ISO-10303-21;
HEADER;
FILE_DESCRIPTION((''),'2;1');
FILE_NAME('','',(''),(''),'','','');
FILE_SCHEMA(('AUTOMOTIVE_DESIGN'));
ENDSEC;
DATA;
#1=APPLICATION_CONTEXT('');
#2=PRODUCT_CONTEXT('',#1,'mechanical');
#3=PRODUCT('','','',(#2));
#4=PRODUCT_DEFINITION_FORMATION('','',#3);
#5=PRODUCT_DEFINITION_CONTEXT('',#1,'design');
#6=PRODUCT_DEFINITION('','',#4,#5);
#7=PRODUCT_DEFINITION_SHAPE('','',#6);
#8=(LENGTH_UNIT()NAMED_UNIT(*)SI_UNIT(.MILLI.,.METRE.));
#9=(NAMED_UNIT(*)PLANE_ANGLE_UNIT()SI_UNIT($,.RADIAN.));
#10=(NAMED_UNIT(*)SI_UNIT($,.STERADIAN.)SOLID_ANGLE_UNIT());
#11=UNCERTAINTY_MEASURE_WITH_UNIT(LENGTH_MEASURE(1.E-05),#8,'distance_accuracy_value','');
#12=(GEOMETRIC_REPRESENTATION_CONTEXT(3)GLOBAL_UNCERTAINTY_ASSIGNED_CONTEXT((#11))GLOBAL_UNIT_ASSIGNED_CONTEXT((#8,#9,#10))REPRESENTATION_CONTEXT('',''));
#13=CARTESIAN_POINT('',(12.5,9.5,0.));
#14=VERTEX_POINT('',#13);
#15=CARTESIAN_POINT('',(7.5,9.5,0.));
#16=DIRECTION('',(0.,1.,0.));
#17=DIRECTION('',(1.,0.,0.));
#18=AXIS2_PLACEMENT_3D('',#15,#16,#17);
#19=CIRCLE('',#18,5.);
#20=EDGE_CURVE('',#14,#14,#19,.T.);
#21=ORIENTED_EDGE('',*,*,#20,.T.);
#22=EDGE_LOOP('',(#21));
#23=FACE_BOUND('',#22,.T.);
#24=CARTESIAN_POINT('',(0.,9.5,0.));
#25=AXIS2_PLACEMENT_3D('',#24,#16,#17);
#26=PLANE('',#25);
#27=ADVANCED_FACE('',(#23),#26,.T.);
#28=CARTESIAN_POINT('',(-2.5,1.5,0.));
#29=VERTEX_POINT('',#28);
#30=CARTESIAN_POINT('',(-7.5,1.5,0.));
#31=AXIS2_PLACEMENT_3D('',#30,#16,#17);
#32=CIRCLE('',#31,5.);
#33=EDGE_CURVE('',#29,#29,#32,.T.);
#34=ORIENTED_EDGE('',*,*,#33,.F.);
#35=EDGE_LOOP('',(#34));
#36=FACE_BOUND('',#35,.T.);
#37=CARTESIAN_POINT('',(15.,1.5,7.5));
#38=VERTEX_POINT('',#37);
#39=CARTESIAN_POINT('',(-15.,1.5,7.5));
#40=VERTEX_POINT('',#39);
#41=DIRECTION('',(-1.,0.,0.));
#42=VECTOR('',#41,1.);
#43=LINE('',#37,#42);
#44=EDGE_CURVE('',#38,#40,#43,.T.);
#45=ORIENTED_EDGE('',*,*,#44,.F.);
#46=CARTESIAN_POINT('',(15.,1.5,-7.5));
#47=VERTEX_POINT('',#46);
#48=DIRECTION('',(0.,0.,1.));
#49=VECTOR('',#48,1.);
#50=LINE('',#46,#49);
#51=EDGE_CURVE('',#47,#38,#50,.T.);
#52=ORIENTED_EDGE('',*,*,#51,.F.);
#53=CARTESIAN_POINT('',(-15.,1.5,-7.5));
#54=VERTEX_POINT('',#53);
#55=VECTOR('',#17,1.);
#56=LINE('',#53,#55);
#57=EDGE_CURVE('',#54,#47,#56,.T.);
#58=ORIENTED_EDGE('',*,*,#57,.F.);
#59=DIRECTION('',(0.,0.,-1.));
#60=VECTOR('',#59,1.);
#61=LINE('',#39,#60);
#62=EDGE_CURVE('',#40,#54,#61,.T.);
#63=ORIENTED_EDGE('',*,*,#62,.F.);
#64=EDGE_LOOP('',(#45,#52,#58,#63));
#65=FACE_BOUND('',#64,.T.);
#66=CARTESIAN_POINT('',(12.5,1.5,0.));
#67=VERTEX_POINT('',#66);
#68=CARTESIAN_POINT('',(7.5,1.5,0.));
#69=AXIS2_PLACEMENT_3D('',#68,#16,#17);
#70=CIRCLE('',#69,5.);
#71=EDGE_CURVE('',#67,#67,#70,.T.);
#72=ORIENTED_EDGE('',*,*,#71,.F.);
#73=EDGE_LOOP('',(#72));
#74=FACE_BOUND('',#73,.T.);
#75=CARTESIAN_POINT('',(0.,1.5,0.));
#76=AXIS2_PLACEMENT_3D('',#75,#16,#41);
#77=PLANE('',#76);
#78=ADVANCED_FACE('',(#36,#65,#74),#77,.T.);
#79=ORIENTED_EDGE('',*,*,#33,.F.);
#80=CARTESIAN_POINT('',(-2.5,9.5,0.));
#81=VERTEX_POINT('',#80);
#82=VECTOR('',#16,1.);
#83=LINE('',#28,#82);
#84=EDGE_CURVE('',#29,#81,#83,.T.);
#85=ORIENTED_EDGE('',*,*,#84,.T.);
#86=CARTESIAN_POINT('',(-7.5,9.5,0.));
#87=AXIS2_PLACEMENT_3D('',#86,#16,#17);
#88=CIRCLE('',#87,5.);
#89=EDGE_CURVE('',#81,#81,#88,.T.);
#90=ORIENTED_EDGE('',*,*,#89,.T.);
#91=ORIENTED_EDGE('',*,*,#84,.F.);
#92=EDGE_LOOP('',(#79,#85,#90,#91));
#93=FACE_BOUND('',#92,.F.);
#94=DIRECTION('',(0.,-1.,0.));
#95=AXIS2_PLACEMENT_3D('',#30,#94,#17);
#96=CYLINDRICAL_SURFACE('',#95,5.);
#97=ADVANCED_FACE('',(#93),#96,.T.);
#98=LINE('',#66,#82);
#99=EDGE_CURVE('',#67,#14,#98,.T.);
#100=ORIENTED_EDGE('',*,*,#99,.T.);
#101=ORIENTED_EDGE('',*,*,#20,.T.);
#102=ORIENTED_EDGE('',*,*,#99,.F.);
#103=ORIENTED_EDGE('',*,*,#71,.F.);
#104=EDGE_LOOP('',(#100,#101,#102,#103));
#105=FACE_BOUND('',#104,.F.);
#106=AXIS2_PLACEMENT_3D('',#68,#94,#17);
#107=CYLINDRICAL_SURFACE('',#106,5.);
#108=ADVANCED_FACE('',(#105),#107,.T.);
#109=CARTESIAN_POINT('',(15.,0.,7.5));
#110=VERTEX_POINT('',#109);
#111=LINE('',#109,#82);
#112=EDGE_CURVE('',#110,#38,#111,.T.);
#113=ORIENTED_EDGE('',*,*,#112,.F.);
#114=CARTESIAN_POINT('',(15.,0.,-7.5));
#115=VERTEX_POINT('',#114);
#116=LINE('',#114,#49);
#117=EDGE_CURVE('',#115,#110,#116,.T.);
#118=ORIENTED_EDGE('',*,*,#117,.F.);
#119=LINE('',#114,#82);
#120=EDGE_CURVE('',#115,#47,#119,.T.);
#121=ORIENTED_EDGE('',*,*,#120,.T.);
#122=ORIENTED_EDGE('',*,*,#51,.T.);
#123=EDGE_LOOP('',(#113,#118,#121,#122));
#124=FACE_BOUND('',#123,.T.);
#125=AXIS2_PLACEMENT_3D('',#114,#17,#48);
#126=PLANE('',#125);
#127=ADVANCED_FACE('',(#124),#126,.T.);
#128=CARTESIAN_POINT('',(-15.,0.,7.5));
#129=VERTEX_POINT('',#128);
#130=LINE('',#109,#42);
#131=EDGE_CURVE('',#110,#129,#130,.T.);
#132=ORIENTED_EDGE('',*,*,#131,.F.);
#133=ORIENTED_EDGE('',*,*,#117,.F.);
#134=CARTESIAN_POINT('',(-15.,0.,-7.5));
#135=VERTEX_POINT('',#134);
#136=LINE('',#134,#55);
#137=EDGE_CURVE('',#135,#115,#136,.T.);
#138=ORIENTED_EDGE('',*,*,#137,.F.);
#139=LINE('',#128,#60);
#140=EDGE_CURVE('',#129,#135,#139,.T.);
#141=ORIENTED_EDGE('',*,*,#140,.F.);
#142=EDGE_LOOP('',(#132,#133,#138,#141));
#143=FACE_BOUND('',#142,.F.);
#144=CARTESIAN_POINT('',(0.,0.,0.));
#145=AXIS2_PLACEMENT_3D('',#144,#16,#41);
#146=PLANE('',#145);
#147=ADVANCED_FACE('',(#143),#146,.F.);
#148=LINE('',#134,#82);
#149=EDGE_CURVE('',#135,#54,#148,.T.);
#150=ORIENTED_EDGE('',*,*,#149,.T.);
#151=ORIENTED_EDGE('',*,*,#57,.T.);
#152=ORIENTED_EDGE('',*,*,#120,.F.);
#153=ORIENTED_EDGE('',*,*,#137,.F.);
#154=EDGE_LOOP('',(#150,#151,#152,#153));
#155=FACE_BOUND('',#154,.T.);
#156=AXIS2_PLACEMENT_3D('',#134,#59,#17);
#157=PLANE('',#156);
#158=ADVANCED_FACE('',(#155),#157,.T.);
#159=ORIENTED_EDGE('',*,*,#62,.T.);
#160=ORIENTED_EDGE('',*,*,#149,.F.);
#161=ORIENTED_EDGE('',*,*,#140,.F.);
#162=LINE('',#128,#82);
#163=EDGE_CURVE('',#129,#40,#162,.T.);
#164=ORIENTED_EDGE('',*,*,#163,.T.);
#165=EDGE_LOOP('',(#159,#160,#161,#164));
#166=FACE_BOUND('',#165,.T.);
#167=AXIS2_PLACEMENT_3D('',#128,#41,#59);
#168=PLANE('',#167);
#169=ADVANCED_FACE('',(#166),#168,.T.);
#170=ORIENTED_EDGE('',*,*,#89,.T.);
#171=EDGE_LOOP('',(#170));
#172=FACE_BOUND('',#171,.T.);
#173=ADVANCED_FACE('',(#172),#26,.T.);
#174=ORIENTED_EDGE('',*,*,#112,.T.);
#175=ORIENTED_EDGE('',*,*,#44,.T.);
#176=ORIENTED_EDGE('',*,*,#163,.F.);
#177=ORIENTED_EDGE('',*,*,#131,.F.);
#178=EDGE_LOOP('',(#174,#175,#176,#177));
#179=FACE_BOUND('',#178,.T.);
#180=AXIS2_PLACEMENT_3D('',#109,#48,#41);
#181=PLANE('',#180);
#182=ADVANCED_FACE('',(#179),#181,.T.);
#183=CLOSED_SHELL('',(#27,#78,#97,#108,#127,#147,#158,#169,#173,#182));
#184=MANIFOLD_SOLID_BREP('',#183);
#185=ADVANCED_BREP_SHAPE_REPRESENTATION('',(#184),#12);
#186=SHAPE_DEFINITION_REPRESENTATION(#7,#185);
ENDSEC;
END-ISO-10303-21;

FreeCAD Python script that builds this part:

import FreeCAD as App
import Part
import Sketcher
from FreeCAD import Vector
Q = App.Units.Quantity


def add_polygon(sketch, points):
    """Adds a closed chain of lines whose ends are joined by coincident constraints."""
    first, n = sketch.GeometryCount, len(points)
    for a, b in zip(points, points[1:] + points[:1]):
        sketch.addGeometry(Part.LineSegment(App.Vector(*a, 0), App.Vector(*b, 0)), False)
    for i in range(n):
        sketch.addConstraint(Sketcher.Constraint("Coincident", first + i, 2, first + (i + 1) % n, 1))

doc = App.newDocument("Part")
params = doc.addObject("Spreadsheet::Sheet", "Params")
for row, (alias, value) in enumerate([
    ("sketch1_width", "30 mm"),
    ("sketch1_height", "15 mm"),
    ("pad1_length", "1.5 mm"),
    ("sketch2_diameter", "10 mm"),
    ("pad2_length", "8 mm"),
], start=1):
    params.set(f"A{row}", alias)
    params.set(f"B{row}", "=" + value)
    params.setAlias(f"B{row}", alias)

body = doc.addObject("PartDesign::Body", "Body")

sketch1 = body.newObject("Sketcher::SketchObject", "Sketch")
sketch1.AttachmentSupport = (doc.getObject("XZ_Plane"), [""])
sketch1.MapMode = "FlatFace"
add_polygon(sketch1, [(-15, 8), (15, 8), (15, -8), (-15, -8)])
sketch1.addConstraint([
    Sketcher.Constraint("Horizontal", 0),
    Sketcher.Constraint("Vertical", 1),
    Sketcher.Constraint("Horizontal", 2),
    Sketcher.Constraint("Vertical", 3),
    Sketcher.Constraint("Symmetric", 0, 2, 2, 2, -1, 1),
    Sketcher.Constraint("DistanceX", 0, 1, 0, 2, Q("30 mm")),
    Sketcher.Constraint("DistanceY", 1, 2, 1, 1, Q("15 mm")),
])
sketch1.setExpression("Constraints[9]", "Params.sketch1_width")
sketch1.setExpression("Constraints[10]", "Params.sketch1_height")
pad1 = body.newObject("PartDesign::Pad", "Pad")
pad1.Profile = sketch1
pad1.setExpression("Length", "Params.pad1_length")
pad1.Reversed = True

sketch2 = body.newObject("Sketcher::SketchObject", "Sketch001")
sketch2.AttachmentSupport = (doc.getObject("XZ_Plane"), [""])
sketch2.MapMode = "FlatFace"
sketch2.AttachmentOffset = App.Placement(Vector(0, 0, -1.5), App.Rotation())
sketch2.addGeometry([
    Part.Circle(Vector(-8, 0, 0), Vector(0, 0, 1), 5),
    Part.Circle(Vector(8, 0, 0), Vector(0, 0, 1), 5),
], False)
sketch2.addConstraint([
    Sketcher.Constraint("Equal", 0, 1),
    Sketcher.Constraint("Symmetric", 0, 3, 1, 3, -1, 1),
    Sketcher.Constraint("PointOnObject", 0, 3, -1),
    Sketcher.Constraint("Diameter", 0, Q("10 mm")),
    Sketcher.Constraint("DistanceX", 0, 3, 1, 3, Q("15 mm")),
])
sketch2.setExpression("Constraints[3]", "Params.sketch2_diameter")
pad2 = body.newObject("PartDesign::Pad", "Pad001")
pad2.Profile = sketch2
pad2.setExpression("Length", "Params.pad2_length")
pad2.Reversed = True

doc.recompute()
